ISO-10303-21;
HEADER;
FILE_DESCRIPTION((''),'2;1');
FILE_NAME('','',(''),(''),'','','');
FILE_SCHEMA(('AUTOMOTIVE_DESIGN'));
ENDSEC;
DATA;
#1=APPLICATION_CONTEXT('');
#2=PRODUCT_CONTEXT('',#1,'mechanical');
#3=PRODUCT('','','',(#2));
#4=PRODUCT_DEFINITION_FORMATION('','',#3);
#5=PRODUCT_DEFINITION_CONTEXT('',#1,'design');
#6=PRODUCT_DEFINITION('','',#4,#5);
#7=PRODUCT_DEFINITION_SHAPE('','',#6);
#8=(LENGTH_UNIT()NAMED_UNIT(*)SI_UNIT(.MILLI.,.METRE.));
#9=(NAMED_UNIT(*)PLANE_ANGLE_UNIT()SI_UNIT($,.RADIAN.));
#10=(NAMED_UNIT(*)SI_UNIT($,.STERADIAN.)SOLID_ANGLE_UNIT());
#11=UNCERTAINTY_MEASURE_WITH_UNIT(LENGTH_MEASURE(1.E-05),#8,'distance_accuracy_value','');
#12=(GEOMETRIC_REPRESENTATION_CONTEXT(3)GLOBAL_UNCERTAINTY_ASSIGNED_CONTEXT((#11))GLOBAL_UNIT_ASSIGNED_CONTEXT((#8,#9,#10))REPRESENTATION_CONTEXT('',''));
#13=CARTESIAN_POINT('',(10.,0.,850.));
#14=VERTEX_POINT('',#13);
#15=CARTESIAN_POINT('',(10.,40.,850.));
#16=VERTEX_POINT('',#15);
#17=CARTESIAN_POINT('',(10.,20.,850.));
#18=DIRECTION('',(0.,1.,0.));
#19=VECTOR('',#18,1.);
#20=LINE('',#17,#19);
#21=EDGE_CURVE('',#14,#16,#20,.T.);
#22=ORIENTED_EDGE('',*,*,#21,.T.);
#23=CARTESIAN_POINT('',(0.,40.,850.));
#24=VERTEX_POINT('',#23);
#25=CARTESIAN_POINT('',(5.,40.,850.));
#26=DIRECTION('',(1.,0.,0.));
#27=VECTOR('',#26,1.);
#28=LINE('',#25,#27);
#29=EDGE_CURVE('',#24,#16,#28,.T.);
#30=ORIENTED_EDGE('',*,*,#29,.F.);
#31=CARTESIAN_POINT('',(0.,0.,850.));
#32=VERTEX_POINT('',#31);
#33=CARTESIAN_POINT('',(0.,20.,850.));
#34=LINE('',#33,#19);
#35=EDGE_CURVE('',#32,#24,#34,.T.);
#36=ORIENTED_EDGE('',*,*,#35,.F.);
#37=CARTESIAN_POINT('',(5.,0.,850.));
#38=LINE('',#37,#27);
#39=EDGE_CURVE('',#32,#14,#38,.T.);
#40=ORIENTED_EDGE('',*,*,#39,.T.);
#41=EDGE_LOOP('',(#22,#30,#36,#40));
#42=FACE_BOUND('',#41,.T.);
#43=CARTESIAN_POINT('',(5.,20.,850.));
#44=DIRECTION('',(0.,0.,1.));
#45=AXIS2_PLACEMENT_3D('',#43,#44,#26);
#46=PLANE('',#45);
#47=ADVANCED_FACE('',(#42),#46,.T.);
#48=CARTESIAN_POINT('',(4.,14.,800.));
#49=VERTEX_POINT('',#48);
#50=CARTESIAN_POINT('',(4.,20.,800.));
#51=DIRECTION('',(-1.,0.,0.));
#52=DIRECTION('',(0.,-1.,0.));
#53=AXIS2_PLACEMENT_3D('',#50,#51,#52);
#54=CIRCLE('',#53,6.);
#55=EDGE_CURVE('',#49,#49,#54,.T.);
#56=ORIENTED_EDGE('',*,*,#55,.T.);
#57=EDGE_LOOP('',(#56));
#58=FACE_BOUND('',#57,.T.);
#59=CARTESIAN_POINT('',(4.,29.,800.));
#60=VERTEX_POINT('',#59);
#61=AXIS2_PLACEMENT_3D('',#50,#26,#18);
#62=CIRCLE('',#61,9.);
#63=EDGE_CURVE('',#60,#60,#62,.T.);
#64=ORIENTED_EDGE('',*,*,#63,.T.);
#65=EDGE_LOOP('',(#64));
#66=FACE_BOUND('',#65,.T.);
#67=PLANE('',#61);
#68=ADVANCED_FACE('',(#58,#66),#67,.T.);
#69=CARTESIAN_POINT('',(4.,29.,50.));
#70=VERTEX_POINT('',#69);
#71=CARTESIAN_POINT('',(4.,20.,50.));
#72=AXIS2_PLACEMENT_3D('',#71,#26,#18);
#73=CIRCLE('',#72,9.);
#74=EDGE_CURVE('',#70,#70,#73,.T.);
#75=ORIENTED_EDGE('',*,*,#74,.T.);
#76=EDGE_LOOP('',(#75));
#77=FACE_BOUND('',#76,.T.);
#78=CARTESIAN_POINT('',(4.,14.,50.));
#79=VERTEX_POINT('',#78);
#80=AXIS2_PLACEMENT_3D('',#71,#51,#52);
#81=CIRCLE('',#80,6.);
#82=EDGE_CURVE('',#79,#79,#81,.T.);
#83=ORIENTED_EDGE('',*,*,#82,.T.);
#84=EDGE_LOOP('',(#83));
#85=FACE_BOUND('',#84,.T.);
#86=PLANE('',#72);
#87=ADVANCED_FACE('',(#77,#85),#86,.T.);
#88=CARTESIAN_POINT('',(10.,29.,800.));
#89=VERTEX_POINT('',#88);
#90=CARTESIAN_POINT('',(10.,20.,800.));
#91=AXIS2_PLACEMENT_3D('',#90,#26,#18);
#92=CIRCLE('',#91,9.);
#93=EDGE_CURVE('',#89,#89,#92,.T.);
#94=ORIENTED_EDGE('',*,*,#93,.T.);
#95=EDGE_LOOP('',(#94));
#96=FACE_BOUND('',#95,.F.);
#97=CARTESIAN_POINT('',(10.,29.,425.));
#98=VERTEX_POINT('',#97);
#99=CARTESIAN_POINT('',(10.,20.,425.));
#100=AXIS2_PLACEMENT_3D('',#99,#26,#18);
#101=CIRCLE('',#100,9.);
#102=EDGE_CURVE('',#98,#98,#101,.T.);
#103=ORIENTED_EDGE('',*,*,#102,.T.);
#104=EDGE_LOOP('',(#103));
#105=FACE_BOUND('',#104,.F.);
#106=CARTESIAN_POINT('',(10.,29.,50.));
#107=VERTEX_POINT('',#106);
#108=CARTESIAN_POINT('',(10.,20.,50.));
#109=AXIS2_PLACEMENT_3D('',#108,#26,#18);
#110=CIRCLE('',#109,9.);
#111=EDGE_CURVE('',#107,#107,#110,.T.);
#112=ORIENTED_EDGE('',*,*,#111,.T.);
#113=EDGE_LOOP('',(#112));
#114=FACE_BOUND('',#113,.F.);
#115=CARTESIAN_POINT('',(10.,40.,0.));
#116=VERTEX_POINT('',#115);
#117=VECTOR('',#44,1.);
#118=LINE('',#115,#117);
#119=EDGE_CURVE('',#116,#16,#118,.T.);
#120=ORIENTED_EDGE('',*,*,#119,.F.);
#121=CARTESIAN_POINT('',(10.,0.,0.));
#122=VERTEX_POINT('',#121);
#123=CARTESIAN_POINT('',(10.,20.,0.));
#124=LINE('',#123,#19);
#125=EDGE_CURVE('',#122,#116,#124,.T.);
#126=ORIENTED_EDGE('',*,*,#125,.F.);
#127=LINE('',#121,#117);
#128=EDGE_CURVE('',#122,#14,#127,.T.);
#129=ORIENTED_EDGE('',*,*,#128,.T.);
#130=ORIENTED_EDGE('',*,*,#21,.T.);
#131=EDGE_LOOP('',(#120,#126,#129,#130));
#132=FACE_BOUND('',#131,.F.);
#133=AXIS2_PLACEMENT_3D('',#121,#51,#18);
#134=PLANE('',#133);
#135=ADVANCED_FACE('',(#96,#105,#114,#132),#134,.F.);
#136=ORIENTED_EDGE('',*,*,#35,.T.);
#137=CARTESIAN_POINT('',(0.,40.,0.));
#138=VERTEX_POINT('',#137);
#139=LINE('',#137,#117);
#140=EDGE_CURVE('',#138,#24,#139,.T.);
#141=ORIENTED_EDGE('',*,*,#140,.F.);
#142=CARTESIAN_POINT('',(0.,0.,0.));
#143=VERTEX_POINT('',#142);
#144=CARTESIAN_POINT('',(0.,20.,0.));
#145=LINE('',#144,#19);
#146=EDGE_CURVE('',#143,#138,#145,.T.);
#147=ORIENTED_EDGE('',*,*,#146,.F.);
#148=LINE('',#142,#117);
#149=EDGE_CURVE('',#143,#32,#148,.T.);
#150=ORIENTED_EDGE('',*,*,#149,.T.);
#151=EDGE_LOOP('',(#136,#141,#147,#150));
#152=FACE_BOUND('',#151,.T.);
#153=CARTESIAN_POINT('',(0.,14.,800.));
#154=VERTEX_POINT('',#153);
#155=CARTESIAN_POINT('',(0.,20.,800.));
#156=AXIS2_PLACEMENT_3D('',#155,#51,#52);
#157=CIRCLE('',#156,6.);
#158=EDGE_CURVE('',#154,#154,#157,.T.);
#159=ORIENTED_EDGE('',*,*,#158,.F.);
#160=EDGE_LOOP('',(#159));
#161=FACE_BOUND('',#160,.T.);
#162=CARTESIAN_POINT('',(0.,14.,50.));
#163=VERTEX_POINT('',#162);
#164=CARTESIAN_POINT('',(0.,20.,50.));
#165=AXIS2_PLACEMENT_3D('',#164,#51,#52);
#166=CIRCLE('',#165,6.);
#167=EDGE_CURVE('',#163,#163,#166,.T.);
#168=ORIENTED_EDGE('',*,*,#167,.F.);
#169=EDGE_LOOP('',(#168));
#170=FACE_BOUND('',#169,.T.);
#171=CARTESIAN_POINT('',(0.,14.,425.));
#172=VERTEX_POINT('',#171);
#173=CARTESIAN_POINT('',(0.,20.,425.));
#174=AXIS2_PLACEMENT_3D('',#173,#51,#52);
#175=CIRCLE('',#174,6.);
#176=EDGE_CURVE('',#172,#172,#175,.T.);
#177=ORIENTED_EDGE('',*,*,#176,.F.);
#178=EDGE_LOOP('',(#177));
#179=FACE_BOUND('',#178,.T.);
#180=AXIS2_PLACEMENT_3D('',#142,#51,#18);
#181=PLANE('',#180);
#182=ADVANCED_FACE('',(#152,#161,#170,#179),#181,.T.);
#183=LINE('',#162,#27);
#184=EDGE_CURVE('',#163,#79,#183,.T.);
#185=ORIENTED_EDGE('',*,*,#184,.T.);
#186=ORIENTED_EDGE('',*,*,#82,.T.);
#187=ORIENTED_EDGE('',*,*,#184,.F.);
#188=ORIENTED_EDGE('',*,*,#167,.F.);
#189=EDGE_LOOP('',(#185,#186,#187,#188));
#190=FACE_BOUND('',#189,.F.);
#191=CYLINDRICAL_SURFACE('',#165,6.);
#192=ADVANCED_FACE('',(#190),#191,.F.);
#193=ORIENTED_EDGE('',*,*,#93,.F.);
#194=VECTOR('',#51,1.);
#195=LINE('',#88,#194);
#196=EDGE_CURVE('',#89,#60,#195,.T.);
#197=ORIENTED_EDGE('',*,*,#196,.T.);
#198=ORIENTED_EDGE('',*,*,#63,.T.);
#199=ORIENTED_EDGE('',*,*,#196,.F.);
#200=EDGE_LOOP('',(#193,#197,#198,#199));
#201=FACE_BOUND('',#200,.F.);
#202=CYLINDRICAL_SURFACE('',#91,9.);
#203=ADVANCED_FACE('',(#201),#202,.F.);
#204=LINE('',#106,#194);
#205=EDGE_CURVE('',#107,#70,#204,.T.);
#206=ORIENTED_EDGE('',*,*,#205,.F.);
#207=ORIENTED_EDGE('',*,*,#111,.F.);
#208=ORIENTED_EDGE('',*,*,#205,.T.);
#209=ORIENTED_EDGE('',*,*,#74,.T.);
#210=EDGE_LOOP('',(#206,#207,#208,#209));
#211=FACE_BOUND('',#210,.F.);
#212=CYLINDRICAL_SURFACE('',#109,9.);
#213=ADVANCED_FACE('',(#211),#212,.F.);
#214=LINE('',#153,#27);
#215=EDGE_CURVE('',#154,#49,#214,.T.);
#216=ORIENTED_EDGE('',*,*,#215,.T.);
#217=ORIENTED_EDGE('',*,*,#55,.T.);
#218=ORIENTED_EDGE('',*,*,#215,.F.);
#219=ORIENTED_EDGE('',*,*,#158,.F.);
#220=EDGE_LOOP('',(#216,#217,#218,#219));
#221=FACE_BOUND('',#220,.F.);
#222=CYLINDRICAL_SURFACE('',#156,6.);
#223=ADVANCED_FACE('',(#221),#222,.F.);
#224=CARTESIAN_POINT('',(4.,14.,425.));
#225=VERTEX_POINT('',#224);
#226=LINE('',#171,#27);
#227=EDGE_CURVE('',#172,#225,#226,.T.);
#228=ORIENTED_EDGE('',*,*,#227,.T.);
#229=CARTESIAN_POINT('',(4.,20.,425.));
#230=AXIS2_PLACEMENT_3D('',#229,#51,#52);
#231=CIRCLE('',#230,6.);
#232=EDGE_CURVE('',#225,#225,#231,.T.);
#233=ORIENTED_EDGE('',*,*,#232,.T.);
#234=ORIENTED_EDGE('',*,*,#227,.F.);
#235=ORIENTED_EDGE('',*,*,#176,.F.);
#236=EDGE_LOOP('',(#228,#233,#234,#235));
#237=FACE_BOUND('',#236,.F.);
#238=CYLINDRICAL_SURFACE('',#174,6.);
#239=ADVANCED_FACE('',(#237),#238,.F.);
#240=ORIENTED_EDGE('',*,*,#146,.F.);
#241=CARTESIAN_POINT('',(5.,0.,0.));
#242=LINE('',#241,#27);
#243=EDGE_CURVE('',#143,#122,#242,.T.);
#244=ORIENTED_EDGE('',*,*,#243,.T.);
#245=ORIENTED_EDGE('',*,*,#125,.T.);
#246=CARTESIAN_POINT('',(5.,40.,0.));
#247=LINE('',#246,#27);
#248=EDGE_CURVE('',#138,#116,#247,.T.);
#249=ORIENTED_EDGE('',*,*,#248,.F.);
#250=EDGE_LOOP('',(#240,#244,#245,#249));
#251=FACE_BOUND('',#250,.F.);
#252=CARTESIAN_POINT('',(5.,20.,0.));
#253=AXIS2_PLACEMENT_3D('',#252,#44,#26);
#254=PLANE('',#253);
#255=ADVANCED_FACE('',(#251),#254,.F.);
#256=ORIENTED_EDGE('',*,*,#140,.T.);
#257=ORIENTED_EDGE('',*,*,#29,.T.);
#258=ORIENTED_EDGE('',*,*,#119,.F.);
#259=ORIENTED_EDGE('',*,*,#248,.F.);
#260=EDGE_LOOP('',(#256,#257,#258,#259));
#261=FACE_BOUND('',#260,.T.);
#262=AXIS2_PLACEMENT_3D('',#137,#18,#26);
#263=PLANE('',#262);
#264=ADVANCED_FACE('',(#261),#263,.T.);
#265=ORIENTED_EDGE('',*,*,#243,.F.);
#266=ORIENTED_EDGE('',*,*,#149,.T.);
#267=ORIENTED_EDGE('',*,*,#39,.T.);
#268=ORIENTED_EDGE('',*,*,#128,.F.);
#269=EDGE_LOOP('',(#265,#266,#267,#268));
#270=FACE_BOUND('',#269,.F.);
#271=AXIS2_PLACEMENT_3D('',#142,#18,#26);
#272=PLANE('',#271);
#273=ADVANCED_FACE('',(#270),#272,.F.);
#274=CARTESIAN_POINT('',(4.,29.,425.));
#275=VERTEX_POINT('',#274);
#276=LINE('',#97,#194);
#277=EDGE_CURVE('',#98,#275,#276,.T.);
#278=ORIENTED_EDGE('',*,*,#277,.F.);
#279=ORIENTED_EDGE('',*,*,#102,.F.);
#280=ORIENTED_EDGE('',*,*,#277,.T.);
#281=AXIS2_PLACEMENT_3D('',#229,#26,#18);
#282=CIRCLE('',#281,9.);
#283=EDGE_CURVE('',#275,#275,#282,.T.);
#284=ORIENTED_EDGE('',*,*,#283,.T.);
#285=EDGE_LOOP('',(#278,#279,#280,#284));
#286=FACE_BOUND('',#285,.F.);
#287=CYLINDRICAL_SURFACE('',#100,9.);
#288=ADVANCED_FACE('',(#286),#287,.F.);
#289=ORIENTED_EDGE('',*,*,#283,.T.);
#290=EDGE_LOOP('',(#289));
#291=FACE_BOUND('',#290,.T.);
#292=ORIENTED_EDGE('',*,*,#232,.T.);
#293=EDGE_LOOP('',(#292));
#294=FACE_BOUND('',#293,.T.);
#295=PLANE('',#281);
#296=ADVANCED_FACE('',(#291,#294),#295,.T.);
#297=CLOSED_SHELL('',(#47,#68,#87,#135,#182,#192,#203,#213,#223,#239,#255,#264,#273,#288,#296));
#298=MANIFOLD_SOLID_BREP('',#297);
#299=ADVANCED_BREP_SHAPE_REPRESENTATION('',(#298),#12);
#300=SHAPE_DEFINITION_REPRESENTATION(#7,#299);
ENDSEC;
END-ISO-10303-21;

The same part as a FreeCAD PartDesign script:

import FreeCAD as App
import Part
import Sketcher

doc = App.newDocument("Part")
body = doc.addObject("PartDesign::Body", "Body")

# Sketch on XY plane
sketch1 = body.newObject("Sketcher::SketchObject", "Sketch")
sketch1.AttachmentSupport = (doc.getObject("XY_Plane"), [""])
sketch1.MapMode = "FlatFace"
sketch1.addGeometry([
    Part.LineSegment(App.Vector(0, 40, 0), App.Vector(0, 0, 0)),
    Part.LineSegment(App.Vector(0, 0, 0), App.Vector(10, 0, 0)),
    Part.LineSegment(App.Vector(10, 0, 0), App.Vector(10, 40, 0)),
    Part.LineSegment(App.Vector(10, 40, 0), App.Vector(0, 40, 0)),
], False)
sketch1.addConstraint([
    Sketcher.Constraint("Coincident", 0, 2, 1, 1),
    Sketcher.Constraint("Coincident", 1, 2, 2, 1),
    Sketcher.Constraint("Coincident", 2, 2, 3, 1),
    Sketcher.Constraint("Coincident", 3, 2, 0, 1),
    Sketcher.Constraint("Vertical", 0),
    Sketcher.Constraint("Horizontal", 1),
    Sketcher.Constraint("Vertical", 2),
    Sketcher.Constraint("Horizontal", 3),
    Sketcher.Constraint("Coincident", 0, 2, -1, 1),
    Sketcher.Constraint("DistanceX", 1, 1, 1, 2, 10.0),
    Sketcher.Constraint("DistanceY", 0, 2, 0, 1, 40.0),
])
pad1 = body.newObject("PartDesign::Pad", "Pad")
pad1.Profile = sketch1
pad1.Length = 850

# Sketch on YZ plane
sketch2 = body.newObject("Sketcher::SketchObject", "Sketch001")
sketch2.AttachmentSupport = (doc.getObject("YZ_Plane"), [""])
sketch2.MapMode = "FlatFace"
sketch2.addGeometry([
    Part.Circle(App.Vector(20, 50, 0), App.Vector(0, 0, 1), 6),
    Part.Circle(App.Vector(20, 425, 0), App.Vector(0, 0, 1), 6),
    Part.Circle(App.Vector(20, 800, 0), App.Vector(0, 0, 1), 6),
], False)
sketch2.addConstraint([
    Sketcher.Constraint("Equal", 0, 1),
    Sketcher.Constraint("Equal", 1, 2),
    Sketcher.Constraint("Vertical", 0, 3, 1, 3),
    Sketcher.Constraint("Vertical", 1, 3, 2, 3),
    Sketcher.Constraint("Diameter", 0, 12.0),
    Sketcher.Constraint("DistanceX", -1, 1, 0, 3, 20.0),
    Sketcher.Constraint("DistanceY", -1, 1, 0, 3, 50.0),
    Sketcher.Constraint("DistanceY", -1, 1, 1, 3, 425.0),
    Sketcher.Constraint("DistanceY", -1, 1, 2, 3, 800.0),
])
pocket1 = body.newObject("PartDesign::Pocket", "Pocket")
pocket1.Profile = sketch2
pocket1.Type = "ThroughAll"
pocket1.Reversed = True

# Sketch on YZ plane
sketch3 = body.newObject("Sketcher::SketchObject", "Sketch002")
sketch3.AttachmentSupport = (doc.getObject("YZ_Plane"), [""])
sketch3.MapMode = "FlatFace"
sketch3.AttachmentOffset = App.Placement(App.Vector(0, 0, 10), App.Rotation())
sketch3.addGeometry([
    Part.Circle(App.Vector(20, 800, 0), App.Vector(0, 0, 1), 9),
    Part.Circle(App.Vector(20, 425, 0), App.Vector(0, 0, 1), 9),
    Part.Circle(App.Vector(20, 50, 0), App.Vector(0, 0, 1), 9),
], False)
sketch3.addConstraint([
    Sketcher.Constraint("Equal", 0, 1),
    Sketcher.Constraint("Equal", 1, 2),
    Sketcher.Constraint("Vertical", 0, 3, 1, 3),
    Sketcher.Constraint("Vertical", 1, 3, 2, 3),
    Sketcher.Constraint("Diameter", 0, 18.0),
    Sketcher.Constraint("DistanceX", -1, 1, 0, 3, 20.0),
    Sketcher.Constraint("DistanceY", -1, 1, 0, 3, 800.0),
    Sketcher.Constraint("DistanceY", -1, 1, 1, 3, 425.0),
    Sketcher.Constraint("DistanceY", -1, 1, 2, 3, 50.0),
])
pocket2 = body.newObject("PartDesign::Pocket", "Pocket001")
pocket2.Profile = sketch3
pocket2.Length = 6

doc.recompute()
